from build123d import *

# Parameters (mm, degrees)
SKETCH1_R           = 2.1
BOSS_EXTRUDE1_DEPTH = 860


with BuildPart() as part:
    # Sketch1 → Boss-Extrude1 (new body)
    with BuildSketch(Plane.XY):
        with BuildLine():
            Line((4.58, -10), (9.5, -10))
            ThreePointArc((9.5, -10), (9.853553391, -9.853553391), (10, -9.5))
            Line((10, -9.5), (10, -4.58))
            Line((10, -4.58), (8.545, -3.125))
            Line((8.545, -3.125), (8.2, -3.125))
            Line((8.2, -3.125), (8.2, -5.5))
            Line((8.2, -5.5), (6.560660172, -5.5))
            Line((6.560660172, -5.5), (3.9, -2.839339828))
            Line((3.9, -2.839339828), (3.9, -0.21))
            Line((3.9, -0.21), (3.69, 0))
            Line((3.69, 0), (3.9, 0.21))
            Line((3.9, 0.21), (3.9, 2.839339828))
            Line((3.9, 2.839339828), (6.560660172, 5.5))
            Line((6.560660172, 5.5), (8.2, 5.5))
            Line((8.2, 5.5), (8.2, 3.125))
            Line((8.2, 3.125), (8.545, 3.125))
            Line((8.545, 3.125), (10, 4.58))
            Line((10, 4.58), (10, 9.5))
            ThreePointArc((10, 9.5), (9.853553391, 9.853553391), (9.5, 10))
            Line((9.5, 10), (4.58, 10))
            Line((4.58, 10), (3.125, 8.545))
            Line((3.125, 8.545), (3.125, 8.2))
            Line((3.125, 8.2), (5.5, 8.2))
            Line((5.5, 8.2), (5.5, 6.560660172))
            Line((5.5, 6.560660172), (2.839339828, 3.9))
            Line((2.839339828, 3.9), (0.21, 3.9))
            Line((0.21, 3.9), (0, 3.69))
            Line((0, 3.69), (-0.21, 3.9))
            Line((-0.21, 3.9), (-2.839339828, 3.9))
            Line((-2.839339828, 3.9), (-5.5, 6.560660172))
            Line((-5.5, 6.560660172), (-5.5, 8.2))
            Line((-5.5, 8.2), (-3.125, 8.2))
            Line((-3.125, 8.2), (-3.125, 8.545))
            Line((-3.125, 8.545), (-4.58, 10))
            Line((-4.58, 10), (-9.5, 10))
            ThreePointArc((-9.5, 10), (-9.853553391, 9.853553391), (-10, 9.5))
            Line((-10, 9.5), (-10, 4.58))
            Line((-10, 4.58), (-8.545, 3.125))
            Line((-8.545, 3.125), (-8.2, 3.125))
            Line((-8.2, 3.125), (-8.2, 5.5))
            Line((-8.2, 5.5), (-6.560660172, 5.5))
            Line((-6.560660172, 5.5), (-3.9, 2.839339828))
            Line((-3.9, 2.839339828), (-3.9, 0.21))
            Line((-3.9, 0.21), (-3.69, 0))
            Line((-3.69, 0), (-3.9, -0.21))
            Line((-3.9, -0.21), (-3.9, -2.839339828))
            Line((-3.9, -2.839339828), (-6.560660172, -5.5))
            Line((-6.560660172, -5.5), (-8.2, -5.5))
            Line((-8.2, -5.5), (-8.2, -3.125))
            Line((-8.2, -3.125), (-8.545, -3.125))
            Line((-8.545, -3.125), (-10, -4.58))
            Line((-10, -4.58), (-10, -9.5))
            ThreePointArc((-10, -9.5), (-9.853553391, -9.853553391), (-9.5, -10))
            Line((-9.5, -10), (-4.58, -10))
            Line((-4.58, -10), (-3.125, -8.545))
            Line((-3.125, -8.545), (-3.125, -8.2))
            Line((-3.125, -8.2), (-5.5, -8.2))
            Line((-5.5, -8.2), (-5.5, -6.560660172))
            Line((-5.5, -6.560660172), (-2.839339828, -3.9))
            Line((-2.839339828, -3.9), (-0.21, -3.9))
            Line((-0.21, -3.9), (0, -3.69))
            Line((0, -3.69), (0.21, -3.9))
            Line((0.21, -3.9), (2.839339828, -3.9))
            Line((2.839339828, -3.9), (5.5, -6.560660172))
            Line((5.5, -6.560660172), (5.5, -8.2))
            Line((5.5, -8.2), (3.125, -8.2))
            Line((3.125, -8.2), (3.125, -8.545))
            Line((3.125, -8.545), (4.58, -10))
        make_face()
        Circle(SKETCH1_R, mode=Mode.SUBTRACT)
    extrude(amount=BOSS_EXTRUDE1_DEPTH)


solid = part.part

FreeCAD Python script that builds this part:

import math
import FreeCAD as App
import Part
import Sketcher

doc = App.newDocument("Part")
body = doc.addObject("PartDesign::Body", "Body")

sketch1 = doc.addObject("Sketcher::SketchObject", "Sketch")
body.addObject(sketch1)
sketch1.AttachmentSupport = (doc.XY_Plane, [""])
sketch1.MapMode = "FlatFace"
sketch1.addGeometry([
    Part.LineSegment(App.Vector(4.58, -10, 0), App.Vector(9.5, -10, 0)),
    Part.ArcOfCircle(Part.Circle(App.Vector(9.5, -9.5, 0), App.Vector(0, 0, 1), 0.5), math.radians(-90), math.radians(0)),
    Part.LineSegment(App.Vector(10, -9.5, 0), App.Vector(10, -4.58, 0)),
    Part.LineSegment(App.Vector(10, -4.58, 0), App.Vector(8.54, -3.12, 0)),
    Part.LineSegment(App.Vector(8.54, -3.12, 0), App.Vector(8.2, -3.12, 0)),
    Part.LineSegment(App.Vector(8.2, -3.12, 0), App.Vector(8.2, -5.5, 0)),
    Part.LineSegment(App.Vector(8.2, -5.5, 0), App.Vector(6.56, -5.5, 0)),
    Part.LineSegment(App.Vector(6.56, -5.5, 0), App.Vector(3.9, -2.84, 0)),
    Part.LineSegment(App.Vector(3.9, -2.84, 0), App.Vector(3.9, -0.21, 0)),
    Part.LineSegment(App.Vector(3.9, -0.21, 0), App.Vector(3.69, 0, 0)),
    Part.LineSegment(App.Vector(3.69, 0, 0), App.Vector(3.9, 0.21, 0)),
    Part.LineSegment(App.Vector(3.9, 0.21, 0), App.Vector(3.9, 2.84, 0)),
    Part.LineSegment(App.Vector(3.9, 2.84, 0), App.Vector(6.56, 5.5, 0)),
    Part.LineSegment(App.Vector(6.56, 5.5, 0), App.Vector(8.2, 5.5, 0)),
    Part.LineSegment(App.Vector(8.2, 5.5, 0), App.Vector(8.2, 3.12, 0)),
    Part.LineSegment(App.Vector(8.2, 3.12, 0), App.Vector(8.54, 3.12, 0)),
    Part.LineSegment(App.Vector(8.54, 3.12, 0), App.Vector(10, 4.58, 0)),
    Part.LineSegment(App.Vector(10, 4.58, 0), App.Vector(10, 9.5, 0)),
    Part.ArcOfCircle(Part.Circle(App.Vector(9.5, 9.5, 0), App.Vector(0, 0, 1), 0.5), math.radians(0), math.radians(90)),
    Part.LineSegment(App.Vector(9.5, 10, 0), App.Vector(4.58, 10, 0)),
    Part.LineSegment(App.Vector(4.58, 10, 0), App.Vector(3.12, 8.54, 0)),
    Part.LineSegment(App.Vector(3.12, 8.54, 0), App.Vector(3.12, 8.2, 0)),
    Part.LineSegment(App.Vector(3.12, 8.2, 0), App.Vector(5.5, 8.2, 0)),
    Part.LineSegment(App.Vector(5.5, 8.2, 0), App.Vector(5.5, 6.56, 0)),
    Part.LineSegment(App.Vector(5.5, 6.56, 0), App.Vector(2.84, 3.9, 0)),
    Part.LineSegment(App.Vector(2.84, 3.9, 0), App.Vector(0.21, 3.9, 0)),
    Part.LineSegment(App.Vector(0.21, 3.9, 0), App.Vector(0, 3.69, 0)),
    Part.LineSegment(App.Vector(0, 3.69, 0), App.Vector(-0.21, 3.9, 0)),
    Part.LineSegment(App.Vector(-0.21, 3.9, 0), App.Vector(-2.84, 3.9, 0)),
    Part.LineSegment(App.Vector(-2.84, 3.9, 0), App.Vector(-5.5, 6.56, 0)),
    Part.LineSegment(App.Vector(-5.5, 6.56, 0), App.Vector(-5.5, 8.2, 0)),
    Part.LineSegment(App.Vector(-5.5, 8.2, 0), App.Vector(-3.12, 8.2, 0)),
    Part.LineSegment(App.Vector(-3.12, 8.2, 0), App.Vector(-3.12, 8.54, 0)),
    Part.LineSegment(App.Vector(-3.12, 8.54, 0), App.Vector(-4.58, 10, 0)),
    Part.LineSegment(App.Vector(-4.58, 10, 0), App.Vector(-9.5, 10, 0)),
    Part.ArcOfCircle(Part.Circle(App.Vector(-9.5, 9.5, 0), App.Vector(0, 0, 1), 0.5), math.radians(90), math.radians(180)),
    Part.LineSegment(App.Vector(-10, 9.5, 0), App.Vector(-10, 4.58, 0)),
    Part.LineSegment(App.Vector(-10, 4.58, 0), App.Vector(-8.54, 3.12, 0)),
    Part.LineSegment(App.Vector(-8.54, 3.12, 0), App.Vector(-8.2, 3.12, 0)),
    Part.LineSegment(App.Vector(-8.2, 3.12, 0), App.Vector(-8.2, 5.5, 0)),
    Part.LineSegment(App.Vector(-8.2, 5.5, 0), App.Vector(-6.56, 5.5, 0)),
    Part.LineSegment(App.Vector(-6.56, 5.5, 0), App.Vector(-3.9, 2.84, 0)),
    Part.LineSegment(App.Vector(-3.9, 2.84, 0), App.Vector(-3.9, 0.21, 0)),
    Part.LineSegment(App.Vector(-3.9, 0.21, 0), App.Vector(-3.69, 0, 0)),
    Part.LineSegment(App.Vector(-3.69, 0, 0), App.Vector(-3.9, -0.21, 0)),
    Part.LineSegment(App.Vector(-3.9, -0.21, 0), App.Vector(-3.9, -2.84, 0)),
    Part.LineSegment(App.Vector(-3.9, -2.84, 0), App.Vector(-6.56, -5.5, 0)),
    Part.LineSegment(App.Vector(-6.56, -5.5, 0), App.Vector(-8.2, -5.5, 0)),
    Part.LineSegment(App.Vector(-8.2, -5.5, 0), App.Vector(-8.2, -3.12, 0)),
    Part.LineSegment(App.Vector(-8.2, -3.12, 0), App.Vector(-8.54, -3.12, 0)),
    Part.LineSegment(App.Vector(-8.54, -3.12, 0), App.Vector(-10, -4.58, 0)),
    Part.LineSegment(App.Vector(-10, -4.58, 0), App.Vector(-10, -9.5, 0)),
    Part.ArcOfCircle(Part.Circle(App.Vector(-9.5, -9.5, 0), App.Vector(0, 0, 1), 0.5), math.radians(180), math.radians(270)),
    Part.LineSegment(App.Vector(-9.5, -10, 0), App.Vector(-4.58, -10, 0)),
    Part.LineSegment(App.Vector(-4.58, -10, 0), App.Vector(-3.12, -8.54, 0)),
    Part.LineSegment(App.Vector(-3.12, -8.54, 0), App.Vector(-3.12, -8.2, 0)),
    Part.LineSegment(App.Vector(-3.12, -8.2, 0), App.Vector(-5.5, -8.2, 0)),
    Part.LineSegment(App.Vector(-5.5, -8.2, 0), App.Vector(-5.5, -6.56, 0)),
    Part.LineSegment(App.Vector(-5.5, -6.56, 0), App.Vector(-2.84, -3.9, 0)),
    Part.LineSegment(App.Vector(-2.84, -3.9, 0), App.Vector(-0.21, -3.9, 0)),
    Part.LineSegment(App.Vector(-0.21, -3.9, 0), App.Vector(0, -3.69, 0)),
    Part.LineSegment(App.Vector(0, -3.69, 0), App.Vector(0.21, -3.9, 0)),
    Part.LineSegment(App.Vector(0.21, -3.9, 0), App.Vector(2.84, -3.9, 0)),
    Part.LineSegment(App.Vector(2.84, -3.9, 0), App.Vector(5.5, -6.56, 0)),
    Part.LineSegment(App.Vector(5.5, -6.56, 0), App.Vector(5.5, -8.2, 0)),
    Part.LineSegment(App.Vector(5.5, -8.2, 0), App.Vector(3.12, -8.2, 0)),
    Part.LineSegment(App.Vector(3.12, -8.2, 0), App.Vector(3.12, -8.54, 0)),
    Part.LineSegment(App.Vector(3.12, -8.54, 0), App.Vector(4.58, -10, 0)),
    Part.Circle(App.Vector(0, 0, 0), App.Vector(0, 0, 1), 2.1),
], False)
sketch1.addConstraint([
    Sketcher.Constraint("Tangent", 0, 2, 1, 1),
    Sketcher.Constraint("Tangent", 1, 2, 2, 1),
    Sketcher.Constraint("Coincident", 2, 2, 3, 1),
    Sketcher.Constraint("Coincident", 3, 2, 4, 1),
    Sketcher.Constraint("Coincident", 4, 2, 5, 1),
    Sketcher.Constraint("Coincident", 5, 2, 6, 1),
    Sketcher.Constraint("Coincident", 6, 2, 7, 1),
    Sketcher.Constraint("Coincident", 7, 2, 8, 1),
    Sketcher.Constraint("Coincident", 8, 2, 9, 1),
    Sketcher.Constraint("Coincident", 9, 2, 10, 1),
    Sketcher.Constraint("Coincident", 10, 2, 11, 1),
    Sketcher.Constraint("Coincident", 11, 2, 12, 1),
    Sketcher.Constraint("Coincident", 12, 2, 13, 1),
    Sketcher.Constraint("Coincident", 13, 2, 14, 1),
    Sketcher.Constraint("Coincident", 14, 2, 15, 1),
    Sketcher.Constraint("Coincident", 15, 2, 16, 1),
    Sketcher.Constraint("Coincident", 16, 2, 17, 1),
    Sketcher.Constraint("Tangent", 17, 2, 18, 1),
    Sketcher.Constraint("Tangent", 18, 2, 19, 1),
    Sketcher.Constraint("Coincident", 19, 2, 20, 1),
    Sketcher.Constraint("Coincident", 20, 2, 21, 1),
    Sketcher.Constraint("Coincident", 21, 2, 22, 1),
    Sketcher.Constraint("Coincident", 22, 2, 23, 1),
    Sketcher.Constraint("Coincident", 23, 2, 24, 1),
    Sketcher.Constraint("Coincident", 24, 2, 25, 1),
    Sketcher.Constraint("Coincident", 25, 2, 26, 1),
    Sketcher.Constraint("Coincident", 26, 2, 27, 1),
    Sketcher.Constraint("Coincident", 27, 2, 28, 1),
    Sketcher.Constraint("Coincident", 28, 2, 29, 1),
    Sketcher.Constraint("Coincident", 29, 2, 30, 1),
    Sketcher.Constraint("Coincident", 30, 2, 31, 1),
    Sketcher.Constraint("Coincident", 31, 2, 32, 1),
    Sketcher.Constraint("Coincident", 32, 2, 33, 1),
    Sketcher.Constraint("Coincident", 33, 2, 34, 1),
    Sketcher.Constraint("Tangent", 34, 2, 35, 1),
    Sketcher.Constraint("Tangent", 35, 2, 36, 1),
    Sketcher.Constraint("Coincident", 36, 2, 37, 1),
    Sketcher.Constraint("Coincident", 37, 2, 38, 1),
    Sketcher.Constraint("Coincident", 38, 2, 39, 1),
    Sketcher.Constraint("Coincident", 39, 2, 40, 1),
    Sketcher.Constraint("Coincident", 40, 2, 41, 1),
    Sketcher.Constraint("Coincident", 41, 2, 42, 1),
    Sketcher.Constraint("Coincident", 42, 2, 43, 1),
    Sketcher.Constraint("Coincident", 43, 2, 44, 1),
    Sketcher.Constraint("Coincident", 44, 2, 45, 1),
    Sketcher.Constraint("Coincident", 45, 2, 46, 1),
    Sketcher.Constraint("Coincident", 46, 2, 47, 1),
    Sketcher.Constraint("Coincident", 47, 2, 48, 1),
    Sketcher.Constraint("Coincident", 48, 2, 49, 1),
    Sketcher.Constraint("Coincident", 49, 2, 50, 1),
    Sketcher.Constraint("Coincident", 50, 2, 51, 1),
    Sketcher.Constraint("Tangent", 51, 2, 52, 1),
    Sketcher.Constraint("Tangent", 52, 2, 53, 1),
    Sketcher.Constraint("Coincident", 53, 2, 54, 1),
    Sketcher.Constraint("Coincident", 54, 2, 55, 1),
    Sketcher.Constraint("Coincident", 55, 2, 56, 1),
    Sketcher.Constraint("Coincident", 56, 2, 57, 1),
    Sketcher.Constraint("Coincident", 57, 2, 58, 1),
    Sketcher.Constraint("Coincident", 58, 2, 59, 1),
    Sketcher.Constraint("Coincident", 59, 2, 60, 1),
    Sketcher.Constraint("Coincident", 60, 2, 61, 1),
    Sketcher.Constraint("Coincident", 61, 2, 62, 1),
    Sketcher.Constraint("Coincident", 62, 2, 63, 1),
    Sketcher.Constraint("Coincident", 63, 2, 64, 1),
    Sketcher.Constraint("Coincident", 64, 2, 65, 1),
    Sketcher.Constraint("Coincident", 65, 2, 66, 1),
    Sketcher.Constraint("Coincident", 66, 2, 67, 1),
    Sketcher.Constraint("Coincident", 67, 2, 0, 1),
    Sketcher.Constraint("Horizontal", 0),
    Sketcher.Constraint("Vertical", 2),
    Sketcher.Constraint("Horizontal", 4),
    Sketcher.Constraint("Vertical", 5),
    Sketcher.Constraint("Horizontal", 6),
    Sketcher.Constraint("Vertical", 8),
    Sketcher.Constraint("Vertical", 11),
    Sketcher.Constraint("Horizontal", 13),
    Sketcher.Constraint("Vertical", 14),
    Sketcher.Constraint("Horizontal", 15),
    Sketcher.Constraint("Vertical", 17),
    Sketcher.Constraint("Horizontal", 19),
    Sketcher.Constraint("Vertical", 21),
    Sketcher.Constraint("Horizontal", 22),
    Sketcher.Constraint("Vertical", 23),
    Sketcher.Constraint("Horizontal", 25),
    Sketcher.Constraint("Horizontal", 28),
    Sketcher.Constraint("Vertical", 30),
    Sketcher.Constraint("Horizontal", 31),
    Sketcher.Constraint("Vertical", 32),
    Sketcher.Constraint("Horizontal", 34),
    Sketcher.Constraint("Vertical", 36),
    Sketcher.Constraint("Horizontal", 38),
    Sketcher.Constraint("Vertical", 39),
    Sketcher.Constraint("Horizontal", 40),
    Sketcher.Constraint("Vertical", 42),
    Sketcher.Constraint("Vertical", 45),
    Sketcher.Constraint("Horizontal", 47),
    Sketcher.Constraint("Vertical", 48),
    Sketcher.Constraint("Horizontal", 49),
    Sketcher.Constraint("Vertical", 51),
    Sketcher.Constraint("Horizontal", 53),
    Sketcher.Constraint("Vertical", 55),
    Sketcher.Constraint("Horizontal", 56),
    Sketcher.Constraint("Vertical", 57),
    Sketcher.Constraint("Horizontal", 59),
    Sketcher.Constraint("Horizontal", 62),
    Sketcher.Constraint("Vertical", 64),
    Sketcher.Constraint("Horizontal", 65),
    Sketcher.Constraint("Vertical", 66),
    Sketcher.Constraint("Coincident", 68, 3, -1, 1),
    Sketcher.Constraint("Equal", 1, 18),
    Sketcher.Constraint("Equal", 18, 35),
    Sketcher.Constraint("Equal", 35, 52),
    Sketcher.Constraint("Symmetric", 1, 3, 35, 3, -1, 1),
    Sketcher.Constraint("Symmetric", 18, 3, 52, 3, -1, 1),
    Sketcher.Constraint("Symmetric", 3, 2, 37, 2, -1, 1),
    Sketcher.Constraint("Symmetric", 5, 2, 39, 2, -1, 1),
    Sketcher.Constraint("Symmetric", 7, 2, 41, 2, -1, 1),
    Sketcher.Constraint("Symmetric", 9, 2, 43, 2, -1, 1),
    Sketcher.Constraint("Symmetric", 10, 2, 44, 2, -1, 1),
    Sketcher.Constraint("Symmetric", 12, 2, 46, 2, -1, 1),
    Sketcher.Constraint("Symmetric", 14, 2, 48, 2, -1, 1),
    Sketcher.Constraint("Symmetric", 20, 2, 54, 2, -1, 1),
    Sketcher.Constraint("Symmetric", 22, 2, 56, 2, -1, 1),
    Sketcher.Constraint("Symmetric", 24, 2, 58, 2, -1, 1),
    Sketcher.Constraint("Symmetric", 26, 2, 60, 2, -1, 1),
    Sketcher.Constraint("Symmetric", 27, 2, 61, 2, -1, 1),
    Sketcher.Constraint("Symmetric", 29, 2, 63, 2, -1, 1),
    Sketcher.Constraint("Symmetric", 31, 2, 65, 2, -1, 1),
    Sketcher.Constraint("Symmetric", 18, 3, 35, 3, -2),
    Sketcher.Constraint("Symmetric", 25, 2, 27, 2, -2),
    Sketcher.Constraint("Symmetric", 23, 2, 29, 2, -2),
    Sketcher.Constraint("Symmetric", 21, 2, 31, 2, -2),
    Sketcher.Constraint("Symmetric", 15, 2, 37, 2, -2),
    Sketcher.Constraint("Symmetric", 13, 2, 39, 2, -2),
    Sketcher.Constraint("Symmetric", 11, 2, 41, 2, -2),
    Sketcher.Constraint("PointOnObject", 9, 2, -1),
    Sketcher.Constraint("PointOnObject", 26, 2, -2),
    Sketcher.Constraint("Parallel", 3, 7),
    Sketcher.Constraint("Parallel", 7, 9),
    Sketcher.Constraint("Perpendicular", 9, 10),
    Sketcher.Constraint("Parallel", 10, 12),
    Sketcher.Constraint("Parallel", 12, 16),
    Sketcher.Constraint("Parallel", 16, 20),
    Sketcher.Constraint("Parallel", 20, 24),
    Sketcher.Constraint("Parallel", 24, 26),
    Sketcher.Constraint("Perpendicular", 26, 27),
    Sketcher.Constraint("Parallel", 27, 29),
    Sketcher.Constraint("Parallel", 29, 33),
    Sketcher.Constraint("Parallel", 33, 37),
    Sketcher.Constraint("Parallel", 37, 41),
    Sketcher.Constraint("Parallel", 41, 43),
    Sketcher.Constraint("Parallel", 44, 46),
    Sketcher.Constraint("Parallel", 46, 50),
    Sketcher.Constraint("Parallel", 50, 54),
    Sketcher.Constraint("Parallel", 54, 58),
    Sketcher.Constraint("Parallel", 58, 60),
    Sketcher.Constraint("Parallel", 61, 63),
    Sketcher.Constraint("Parallel", 63, 67),
    Sketcher.Constraint("Horizontal", 20, 2, 32, 2),
    Sketcher.Constraint("Horizontal", 2, 2, 50, 2),
    Sketcher.Constraint("Horizontal", 54, 2, 66, 2),
    Sketcher.Constraint("Equal", 53, 2),
    Sketcher.Constraint("Equal", 65, 5),
    Sketcher.Constraint("Equal", 62, 8),
    Sketcher.Constraint("Equal", 49, 21),
    Sketcher.Constraint("Equal", 47, 23),
    Sketcher.Constraint("Equal", 16, 20),
    Sketcher.Constraint("Equal", 12, 24),
    Sketcher.Constraint("Equal", 10, 26),
    Sketcher.Constraint("Diameter", 68, 4.2),
    Sketcher.Constraint("Radius", 1, 0.5),
    Sketcher.Constraint("DistanceY", 0, 2, -1, 1, 10.0),
    Sketcher.Constraint("DistanceX", 0, 1, 0, 2, 4.92),
    Sketcher.Constraint("DistanceX", -1, 1, 4, 2, 8.2),
    Sketcher.Constraint("DistanceY", 5, 2, -1, 1, 5.5),
    Sketcher.Constraint("DistanceX", -1, 1, 7, 2, 3.9),
    Sketcher.Constraint("DistanceX", 4, 2, 4, 1, 0.345),
    Sketcher.Constraint("DistanceY", 8, 2, -1, 1, 0.21),
    Sketcher.Constraint("DistanceX", 6, 2, 6, 1, 1.63934),
])
pad1 = doc.addObject("PartDesign::Pad", "Pad")
body.addObject(pad1)
pad1.Profile = sketch1
pad1.Length = 860

doc.recompute()
